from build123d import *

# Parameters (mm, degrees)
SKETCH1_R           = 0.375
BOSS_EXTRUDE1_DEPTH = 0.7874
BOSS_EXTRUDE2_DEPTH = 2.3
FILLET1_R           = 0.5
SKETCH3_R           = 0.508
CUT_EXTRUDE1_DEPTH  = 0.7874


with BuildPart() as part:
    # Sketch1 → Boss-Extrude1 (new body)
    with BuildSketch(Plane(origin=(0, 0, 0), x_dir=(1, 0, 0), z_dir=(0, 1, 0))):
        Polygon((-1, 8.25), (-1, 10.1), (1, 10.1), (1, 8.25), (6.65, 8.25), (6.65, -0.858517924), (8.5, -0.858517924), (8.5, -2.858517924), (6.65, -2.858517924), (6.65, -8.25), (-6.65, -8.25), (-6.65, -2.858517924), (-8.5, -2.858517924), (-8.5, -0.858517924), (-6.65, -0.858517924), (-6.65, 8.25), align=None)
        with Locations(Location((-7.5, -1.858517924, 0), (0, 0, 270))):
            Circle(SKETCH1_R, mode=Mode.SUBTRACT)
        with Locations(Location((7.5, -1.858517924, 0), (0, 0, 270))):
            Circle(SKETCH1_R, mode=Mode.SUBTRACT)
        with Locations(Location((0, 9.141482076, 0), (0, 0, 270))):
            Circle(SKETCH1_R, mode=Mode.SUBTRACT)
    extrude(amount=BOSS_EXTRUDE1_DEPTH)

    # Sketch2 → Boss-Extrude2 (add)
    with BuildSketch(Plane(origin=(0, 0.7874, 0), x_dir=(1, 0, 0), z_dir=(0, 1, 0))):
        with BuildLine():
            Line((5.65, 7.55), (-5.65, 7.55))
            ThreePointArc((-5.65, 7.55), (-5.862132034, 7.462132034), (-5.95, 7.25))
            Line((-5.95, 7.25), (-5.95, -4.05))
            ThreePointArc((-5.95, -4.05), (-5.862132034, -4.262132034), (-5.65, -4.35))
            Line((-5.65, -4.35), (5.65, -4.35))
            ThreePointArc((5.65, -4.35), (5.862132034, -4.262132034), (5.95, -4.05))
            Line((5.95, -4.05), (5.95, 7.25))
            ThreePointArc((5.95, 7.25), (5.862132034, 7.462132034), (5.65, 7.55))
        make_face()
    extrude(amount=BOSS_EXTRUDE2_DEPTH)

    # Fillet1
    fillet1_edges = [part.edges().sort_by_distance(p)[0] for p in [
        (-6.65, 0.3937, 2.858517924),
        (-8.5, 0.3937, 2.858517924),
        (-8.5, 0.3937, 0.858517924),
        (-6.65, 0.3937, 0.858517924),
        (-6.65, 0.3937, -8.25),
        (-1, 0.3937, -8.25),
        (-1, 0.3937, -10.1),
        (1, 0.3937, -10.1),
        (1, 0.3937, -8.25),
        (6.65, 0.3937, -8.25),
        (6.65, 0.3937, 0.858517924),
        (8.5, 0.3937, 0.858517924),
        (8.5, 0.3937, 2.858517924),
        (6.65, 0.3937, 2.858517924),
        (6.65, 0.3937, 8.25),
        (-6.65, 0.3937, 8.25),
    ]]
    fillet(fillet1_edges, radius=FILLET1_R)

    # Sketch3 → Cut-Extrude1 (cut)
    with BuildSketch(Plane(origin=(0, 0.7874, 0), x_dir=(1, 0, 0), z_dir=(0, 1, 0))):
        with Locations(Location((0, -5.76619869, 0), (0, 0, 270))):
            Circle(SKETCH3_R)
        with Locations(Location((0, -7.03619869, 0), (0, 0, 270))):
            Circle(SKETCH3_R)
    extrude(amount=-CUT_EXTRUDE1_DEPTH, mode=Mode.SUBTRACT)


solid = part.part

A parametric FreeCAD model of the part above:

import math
import FreeCAD as App
import Part
import Sketcher
from FreeCAD import Vector
Q = App.Units.Quantity


def edges_at(feature, points):
    """Names of the edges that pass closest to the given points."""
    edges = feature.Shape.Edges
    near = lambda p: min(range(len(edges)), key=lambda i: edges[i].distToShape(Part.Vertex(*p))[0])
    return sorted({f"Edge{near(p) + 1}" for p in points})

doc = App.newDocument("Part")
body = doc.addObject("PartDesign::Body", "Body")

# Sketch on XZ plane
sketch1 = doc.addObject("Sketcher::SketchObject", "Sketch")
body.addObject(sketch1)
sketch1.AttachmentSupport = (doc.XZ_Plane, [""])
sketch1.MapMode = "FlatFace"
sketch1.addGeometry([
    Part.LineSegment(Vector(-1, -10.1, 0), Vector(-1, -8.25, 0)),  # 0
    Part.LineSegment(Vector(-1, -8.25, 0), Vector(-6.65, -8.25, 0)),  # 1
    Part.LineSegment(Vector(-6.65, -8.25, 0), Vector(-6.65, 0.86, 0)),  # 2
    Part.LineSegment(Vector(-6.65, 0.86, 0), Vector(-8.5, 0.86, 0)),  # 3
    Part.LineSegment(Vector(-8.5, 0.86, 0), Vector(-8.5, 2.86, 0)),  # 4
    Part.LineSegment(Vector(-8.5, 2.86, 0), Vector(-6.65, 2.86, 0)),  # 5
    Part.LineSegment(Vector(-6.65, 2.86, 0), Vector(-6.65, 8.25, 0)),  # 6
    Part.LineSegment(Vector(-6.65, 8.25, 0), Vector(6.65, 8.25, 0)),  # 7
    Part.LineSegment(Vector(6.65, 8.25, 0), Vector(6.65, 2.86, 0)),  # 8
    Part.LineSegment(Vector(6.65, 2.86, 0), Vector(8.5, 2.86, 0)),  # 9
    Part.LineSegment(Vector(8.5, 2.86, 0), Vector(8.5, 0.86, 0)),  # 10
    Part.LineSegment(Vector(8.5, 0.86, 0), Vector(6.65, 0.86, 0)),  # 11
    Part.LineSegment(Vector(6.65, 0.86, 0), Vector(6.65, -8.25, 0)),  # 12
    Part.LineSegment(Vector(6.65, -8.25, 0), Vector(1, -8.25, 0)),  # 13
    Part.LineSegment(Vector(1, -8.25, 0), Vector(1, -10.1, 0)),  # 14
    Part.LineSegment(Vector(1, -10.1, 0), Vector(-1, -10.1, 0)),  # 15
    Part.Circle(Vector(7.5, 1.86, 0), Vector(0, 0, 1), 0.38),  # 16
    Part.Circle(Vector(-7.5, 1.86, 0), Vector(0, 0, 1), 0.38),  # 17
    Part.Circle(Vector(0, -9.14, 0), Vector(0, 0, 1), 0.38),  # 18
], False)
sketch1.addConstraint([
    Sketcher.Constraint("Coincident", 0, 2, 1, 1),
    Sketcher.Constraint("Coincident", 1, 2, 2, 1),
    Sketcher.Constraint("Coincident", 2, 2, 3, 1),
    Sketcher.Constraint("Coincident", 3, 2, 4, 1),
    Sketcher.Constraint("Coincident", 4, 2, 5, 1),
    Sketcher.Constraint("Coincident", 5, 2, 6, 1),
    Sketcher.Constraint("Coincident", 6, 2, 7, 1),
    Sketcher.Constraint("Coincident", 7, 2, 8, 1),
    Sketcher.Constraint("Coincident", 8, 2, 9, 1),
    Sketcher.Constraint("Coincident", 9, 2, 10, 1),
    Sketcher.Constraint("Coincident", 10, 2, 11, 1),
    Sketcher.Constraint("Coincident", 11, 2, 12, 1),
    Sketcher.Constraint("Coincident", 12, 2, 13, 1),
    Sketcher.Constraint("Coincident", 13, 2, 14, 1),
    Sketcher.Constraint("Coincident", 14, 2, 15, 1),
    Sketcher.Constraint("Coincident", 15, 2, 0, 1),
    Sketcher.Constraint("Vertical", 0),
    Sketcher.Constraint("Horizontal", 1),
    Sketcher.Constraint("Vertical", 2),
    Sketcher.Constraint("Horizontal", 3),
    Sketcher.Constraint("Vertical", 4),
    Sketcher.Constraint("Horizontal", 5),
    Sketcher.Constraint("Vertical", 6),
    Sketcher.Constraint("Horizontal", 7),
    Sketcher.Constraint("Vertical", 8),
    Sketcher.Constraint("Horizontal", 9),
    Sketcher.Constraint("Vertical", 10),
    Sketcher.Constraint("Horizontal", 11),
    Sketcher.Constraint("Vertical", 12),
    Sketcher.Constraint("Horizontal", 13),
    Sketcher.Constraint("Vertical", 14),
    Sketcher.Constraint("Horizontal", 15),
    Sketcher.Constraint("Equal", 16, 17),
    Sketcher.Constraint("Equal", 17, 18),
    Sketcher.Constraint("Symmetric", 1, 2, 7, 2, -1, 1),
    Sketcher.Constraint("Symmetric", 6, 2, 12, 2, -1, 1),
    Sketcher.Constraint("Symmetric", 16, 3, 17, 3, -2),
    Sketcher.Constraint("Symmetric", 5, 2, 8, 2, -2),
    Sketcher.Constraint("Symmetric", 3, 2, 10, 2, -2),
    Sketcher.Constraint("PointOnObject", 18, 3, -2),
    Sketcher.Constraint("Equal", 1, 13),
    Sketcher.Constraint("Equal", 11, 0),
    Sketcher.Constraint("Equal", 15, 4),
    Sketcher.Constraint("Diameter", 16, Q("0.75 mm")),
    Sketcher.Constraint("DistanceX", 15, 2, 15, 1, Q("2 mm")),
    Sketcher.Constraint("DistanceX", 7, 1, 7, 2, Q("13.3 mm")),
    Sketcher.Constraint("DistanceX", 17, 3, 16, 3, Q("15 mm")),
    Sketcher.Constraint("DistanceY", 18, 3, 16, 3, Q("11 mm")),
    Sketcher.Constraint("DistanceY", 2, 2, 17, 3, Q("1 mm")),
    Sketcher.Constraint("DistanceX", 3, 2, 17, 3, Q("1 mm")),
    Sketcher.Constraint("DistanceY", 14, 2, -1, 1, Q("10.1 mm")),
    Sketcher.Constraint("DistanceY", 2, 1, 2, 2, Q("9.108518 mm")),
])
pad1 = doc.addObject("PartDesign::Pad", "Pad")
body.addObject(pad1)
pad1.Profile = sketch1
pad1.Length = 0.7874
pad1.Reversed = True

# Sketch on XZ plane
sketch2 = doc.addObject("Sketcher::SketchObject", "Sketch001")
body.addObject(sketch2)
sketch2.AttachmentSupport = (doc.XZ_Plane, [""])
sketch2.MapMode = "FlatFace"
sketch2.AttachmentOffset = App.Placement(Vector(0, 0, -0.7874), App.Rotation())
sketch2.addGeometry([
    Part.LineSegment(Vector(5.65, -7.55, 0), Vector(-5.65, -7.55, 0)),  # 0
    Part.ArcOfCircle(Part.Circle(Vector(-5.65, -7.25, 0), Vector(0, 0, 1), 0.3), math.radians(-180), math.radians(-90)),  # 1
    Part.LineSegment(Vector(-5.95, -7.25, 0), Vector(-5.95, 4.05, 0)),  # 2
    Part.ArcOfCircle(Part.Circle(Vector(-5.65, 4.05, 0), Vector(0, 0, 1), 0.3), math.radians(90), math.radians(180)),  # 3
    Part.LineSegment(Vector(-5.65, 4.35, 0), Vector(5.65, 4.35, 0)),  # 4
    Part.ArcOfCircle(Part.Circle(Vector(5.65, 4.05, 0), Vector(0, 0, 1), 0.3), math.radians(0), math.radians(90)),  # 5
    Part.LineSegment(Vector(5.95, 4.05, 0), Vector(5.95, -7.25, 0)),  # 6
    Part.ArcOfCircle(Part.Circle(Vector(5.65, -7.25, 0), Vector(0, 0, 1), 0.3), math.radians(-90), math.radians(0)),  # 7
], False)
sketch2.addConstraint([
    Sketcher.Constraint("Tangent", 0, 2, 1, 2),
    Sketcher.Constraint("Tangent", 1, 1, 2, 1),
    Sketcher.Constraint("Tangent", 2, 2, 3, 2),
    Sketcher.Constraint("Tangent", 3, 1, 4, 1),
    Sketcher.Constraint("Tangent", 4, 2, 5, 2),
    Sketcher.Constraint("Tangent", 5, 1, 6, 1),
    Sketcher.Constraint("Tangent", 6, 2, 7, 2),
    Sketcher.Constraint("Tangent", 7, 1, 0, 1),
    Sketcher.Constraint("Horizontal", 0),
    Sketcher.Constraint("Vertical", 2),
    Sketcher.Constraint("Horizontal", 4),
    Sketcher.Constraint("Vertical", 6),
    Sketcher.Constraint("Equal", 1, 3),
    Sketcher.Constraint("Equal", 3, 5),
    Sketcher.Constraint("Equal", 5, 7),
    Sketcher.Constraint("Equal", 4, 2),
    Sketcher.Constraint("Radius", 1, Q("0.3 mm")),
    Sketcher.Constraint("DistanceX", 0, 2, 0, 1, Q("11.3 mm")),
    Sketcher.Constraint("DistanceX", 1, 3, -1, 1, Q("5.65 mm")),
    Sketcher.Constraint("DistanceY", 1, 3, -1, 1, Q("7.25 mm")),
])
pad2 = doc.addObject("PartDesign::Pad", "Pad001")
body.addObject(pad2)
pad2.Profile = sketch2
pad2.Length = 2.3
pad2.Reversed = True
doc.recompute()

fillet = doc.addObject("PartDesign::Fillet", "Fillet")
body.addObject(fillet)
fillet.Base = (pad2, edges_at(pad2, [
    (-6.65, 0.394, 2.859),
    (-8.5, 0.394, 2.859),
    (-8.5, 0.394, 0.859),
    (-6.65, 0.394, 0.859),
    (-6.65, 0.394, -8.25),
    (-1, 0.394, -8.25),
    (-1, 0.394, -10.1),
    (1, 0.394, -10.1),
    (1, 0.394, -8.25),
    (6.65, 0.394, -8.25),
    (6.65, 0.394, 0.859),
    (8.5, 0.394, 0.859),
    (8.5, 0.394, 2.859),
    (6.65, 0.394, 2.859),
    (6.65, 0.394, 8.25),
    (-6.65, 0.394, 8.25),
]))
fillet.Radius = 0.5

# Sketch on XZ plane
sketch3 = doc.addObject("Sketcher::SketchObject", "Sketch002")
body.addObject(sketch3)
sketch3.AttachmentSupport = (doc.XZ_Plane, [""])
sketch3.MapMode = "FlatFace"
sketch3.AttachmentOffset = App.Placement(Vector(0, 0, -0.7874), App.Rotation())
sketch3.addGeometry([
    Part.Circle(Vector(0, 5.8, 0), Vector(0, 0, 1), 0.5),
    Part.Circle(Vector(0, 7, 0), Vector(0, 0, 1), 0.5),
], False)
sketch3.addConstraint([
    Sketcher.Constraint("Equal", 0, 1),
    Sketcher.Constraint("PointOnObject", 0, 3, -2),
    Sketcher.Constraint("PointOnObject", 1, 3, -2),
    Sketcher.Constraint("Diameter", 0, Q("1.016 mm")),
    Sketcher.Constraint("DistanceY", 0, 3, 1, 3, Q("1.27 mm")),
    Sketcher.Constraint("DistanceY", -1, 1, 0, 3, Q("5.766199 mm")),
])
pocket1 = doc.addObject("PartDesign::Pocket", "Pocket")
body.addObject(pocket1)
pocket1.Profile = sketch3
pocket1.Length = 0.7874
pocket1.Reversed = True

doc.recompute()
